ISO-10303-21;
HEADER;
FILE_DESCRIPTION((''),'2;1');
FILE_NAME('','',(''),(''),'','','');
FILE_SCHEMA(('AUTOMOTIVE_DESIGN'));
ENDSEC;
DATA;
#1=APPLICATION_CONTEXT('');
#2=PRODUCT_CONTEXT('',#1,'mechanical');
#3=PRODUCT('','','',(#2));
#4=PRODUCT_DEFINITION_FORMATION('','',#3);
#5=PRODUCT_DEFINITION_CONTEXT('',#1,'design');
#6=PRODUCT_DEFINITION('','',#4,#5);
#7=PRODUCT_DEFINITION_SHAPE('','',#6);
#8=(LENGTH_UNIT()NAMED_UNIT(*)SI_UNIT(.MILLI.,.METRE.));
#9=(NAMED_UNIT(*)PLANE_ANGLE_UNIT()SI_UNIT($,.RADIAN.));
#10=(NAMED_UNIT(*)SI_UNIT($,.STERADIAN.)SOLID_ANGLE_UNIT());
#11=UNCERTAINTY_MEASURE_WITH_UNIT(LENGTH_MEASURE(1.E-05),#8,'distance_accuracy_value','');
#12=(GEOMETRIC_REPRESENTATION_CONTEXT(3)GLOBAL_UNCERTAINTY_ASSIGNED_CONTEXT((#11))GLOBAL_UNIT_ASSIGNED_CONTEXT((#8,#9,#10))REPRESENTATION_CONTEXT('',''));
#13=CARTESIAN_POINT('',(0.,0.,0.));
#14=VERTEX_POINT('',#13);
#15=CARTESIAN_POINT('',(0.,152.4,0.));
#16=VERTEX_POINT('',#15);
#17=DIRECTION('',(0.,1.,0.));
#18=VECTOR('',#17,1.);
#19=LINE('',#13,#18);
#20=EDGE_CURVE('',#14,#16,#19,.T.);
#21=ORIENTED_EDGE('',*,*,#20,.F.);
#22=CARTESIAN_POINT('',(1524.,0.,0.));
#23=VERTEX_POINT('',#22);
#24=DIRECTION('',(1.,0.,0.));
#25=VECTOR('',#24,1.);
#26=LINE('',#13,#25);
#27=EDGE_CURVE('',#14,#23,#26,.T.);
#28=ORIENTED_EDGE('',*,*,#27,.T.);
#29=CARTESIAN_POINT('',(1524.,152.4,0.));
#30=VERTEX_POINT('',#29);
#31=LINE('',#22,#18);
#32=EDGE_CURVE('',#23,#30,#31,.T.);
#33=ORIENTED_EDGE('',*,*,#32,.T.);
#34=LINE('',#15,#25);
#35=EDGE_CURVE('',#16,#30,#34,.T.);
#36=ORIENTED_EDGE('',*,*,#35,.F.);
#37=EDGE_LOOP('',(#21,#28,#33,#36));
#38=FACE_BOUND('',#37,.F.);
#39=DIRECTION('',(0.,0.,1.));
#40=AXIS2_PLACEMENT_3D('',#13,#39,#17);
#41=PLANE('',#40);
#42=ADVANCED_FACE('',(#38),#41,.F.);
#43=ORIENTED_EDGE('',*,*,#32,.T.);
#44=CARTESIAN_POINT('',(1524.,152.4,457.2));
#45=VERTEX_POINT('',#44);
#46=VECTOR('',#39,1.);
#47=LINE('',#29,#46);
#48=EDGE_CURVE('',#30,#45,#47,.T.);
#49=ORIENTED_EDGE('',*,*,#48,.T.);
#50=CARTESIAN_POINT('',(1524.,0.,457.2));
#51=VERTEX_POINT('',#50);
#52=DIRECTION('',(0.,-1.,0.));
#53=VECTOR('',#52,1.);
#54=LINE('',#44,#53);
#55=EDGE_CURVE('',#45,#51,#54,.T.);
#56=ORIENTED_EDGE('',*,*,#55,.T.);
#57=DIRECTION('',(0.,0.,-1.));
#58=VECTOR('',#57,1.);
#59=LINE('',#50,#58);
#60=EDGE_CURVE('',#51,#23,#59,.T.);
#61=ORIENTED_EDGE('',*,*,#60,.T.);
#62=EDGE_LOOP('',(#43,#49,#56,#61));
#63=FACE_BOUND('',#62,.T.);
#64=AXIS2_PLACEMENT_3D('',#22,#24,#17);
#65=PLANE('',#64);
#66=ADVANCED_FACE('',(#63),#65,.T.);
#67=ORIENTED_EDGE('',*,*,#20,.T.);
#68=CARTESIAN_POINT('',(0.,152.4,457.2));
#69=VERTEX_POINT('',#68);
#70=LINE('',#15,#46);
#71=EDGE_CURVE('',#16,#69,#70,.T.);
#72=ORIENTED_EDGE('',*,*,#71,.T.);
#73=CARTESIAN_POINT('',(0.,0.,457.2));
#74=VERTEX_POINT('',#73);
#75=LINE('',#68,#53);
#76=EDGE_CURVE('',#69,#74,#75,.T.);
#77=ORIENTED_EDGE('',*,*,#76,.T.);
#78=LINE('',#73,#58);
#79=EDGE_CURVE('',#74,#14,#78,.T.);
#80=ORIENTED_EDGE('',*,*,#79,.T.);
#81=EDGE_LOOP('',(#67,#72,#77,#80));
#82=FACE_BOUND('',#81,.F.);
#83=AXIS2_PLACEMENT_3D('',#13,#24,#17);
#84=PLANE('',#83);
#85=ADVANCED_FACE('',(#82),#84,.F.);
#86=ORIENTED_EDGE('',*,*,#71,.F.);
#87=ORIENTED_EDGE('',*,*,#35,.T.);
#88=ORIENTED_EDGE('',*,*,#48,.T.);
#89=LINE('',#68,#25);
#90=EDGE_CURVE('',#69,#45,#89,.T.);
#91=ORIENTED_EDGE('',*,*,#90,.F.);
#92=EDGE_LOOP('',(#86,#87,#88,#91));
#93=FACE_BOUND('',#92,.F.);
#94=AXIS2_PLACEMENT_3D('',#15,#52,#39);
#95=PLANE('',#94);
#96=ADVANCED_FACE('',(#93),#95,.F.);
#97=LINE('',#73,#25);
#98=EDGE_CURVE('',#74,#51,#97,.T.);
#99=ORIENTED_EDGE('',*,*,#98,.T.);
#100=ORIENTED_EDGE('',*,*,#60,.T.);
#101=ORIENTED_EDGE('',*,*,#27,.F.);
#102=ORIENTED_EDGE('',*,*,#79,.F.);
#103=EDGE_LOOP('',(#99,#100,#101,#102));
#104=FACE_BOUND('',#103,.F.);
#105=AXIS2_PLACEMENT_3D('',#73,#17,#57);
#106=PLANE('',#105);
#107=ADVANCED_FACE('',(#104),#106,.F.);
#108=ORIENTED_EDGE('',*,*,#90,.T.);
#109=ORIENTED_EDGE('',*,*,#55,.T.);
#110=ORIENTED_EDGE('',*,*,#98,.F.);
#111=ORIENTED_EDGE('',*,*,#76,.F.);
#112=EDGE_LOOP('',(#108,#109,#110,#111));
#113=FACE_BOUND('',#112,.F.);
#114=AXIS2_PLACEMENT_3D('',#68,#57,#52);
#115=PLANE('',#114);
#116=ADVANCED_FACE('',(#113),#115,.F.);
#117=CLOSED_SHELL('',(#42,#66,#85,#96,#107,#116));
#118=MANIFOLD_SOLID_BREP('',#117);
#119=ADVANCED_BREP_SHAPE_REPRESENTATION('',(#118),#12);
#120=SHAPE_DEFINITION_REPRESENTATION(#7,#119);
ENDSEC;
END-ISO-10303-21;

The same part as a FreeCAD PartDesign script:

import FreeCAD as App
import Part
import Sketcher

V = App.Vector
Q = App.Units.Quantity

doc = App.newDocument("Part")
body = doc.addObject("PartDesign::Body", "Body")

# Sketch on YZ plane
sketch1 = body.newObject("Sketcher::SketchObject", "Sketch")
sketch1.AttachmentSupport = (doc.getObject("YZ_Plane"), [""])
sketch1.MapMode = "FlatFace"
sketch1.addGeometry([
    Part.LineSegment(V(0, 457, 0), V(0, 0, 0)),
    Part.LineSegment(V(0, 0, 0), V(152, 0, 0)),
    Part.LineSegment(V(152, 0, 0), V(152, 457, 0)),
    Part.LineSegment(V(152, 457, 0), V(0, 457, 0)),
], False)
sketch1.addConstraint([
    Sketcher.Constraint("Coincident", 0, 2, 1, 1),
    Sketcher.Constraint("Coincident", 1, 2, 2, 1),
    Sketcher.Constraint("Coincident", 2, 2, 3, 1),
    Sketcher.Constraint("Coincident", 3, 2, 0, 1),
    Sketcher.Constraint("Vertical", 0),
    Sketcher.Constraint("Horizontal", 1),
    Sketcher.Constraint("Vertical", 2),
    Sketcher.Constraint("Horizontal", 3),
    Sketcher.Constraint("Coincident", 0, 2, -1, 1),
    Sketcher.Constraint("DistanceX", 1, 1, 1, 2, Q("6 in")),
    Sketcher.Constraint("DistanceY", 0, 2, 0, 1, Q("18 in")),
])
pad1 = body.newObject("PartDesign::Pad", "Pad")
pad1.Profile = sketch1
pad1.Length = Q("60 in")

doc.recompute()
